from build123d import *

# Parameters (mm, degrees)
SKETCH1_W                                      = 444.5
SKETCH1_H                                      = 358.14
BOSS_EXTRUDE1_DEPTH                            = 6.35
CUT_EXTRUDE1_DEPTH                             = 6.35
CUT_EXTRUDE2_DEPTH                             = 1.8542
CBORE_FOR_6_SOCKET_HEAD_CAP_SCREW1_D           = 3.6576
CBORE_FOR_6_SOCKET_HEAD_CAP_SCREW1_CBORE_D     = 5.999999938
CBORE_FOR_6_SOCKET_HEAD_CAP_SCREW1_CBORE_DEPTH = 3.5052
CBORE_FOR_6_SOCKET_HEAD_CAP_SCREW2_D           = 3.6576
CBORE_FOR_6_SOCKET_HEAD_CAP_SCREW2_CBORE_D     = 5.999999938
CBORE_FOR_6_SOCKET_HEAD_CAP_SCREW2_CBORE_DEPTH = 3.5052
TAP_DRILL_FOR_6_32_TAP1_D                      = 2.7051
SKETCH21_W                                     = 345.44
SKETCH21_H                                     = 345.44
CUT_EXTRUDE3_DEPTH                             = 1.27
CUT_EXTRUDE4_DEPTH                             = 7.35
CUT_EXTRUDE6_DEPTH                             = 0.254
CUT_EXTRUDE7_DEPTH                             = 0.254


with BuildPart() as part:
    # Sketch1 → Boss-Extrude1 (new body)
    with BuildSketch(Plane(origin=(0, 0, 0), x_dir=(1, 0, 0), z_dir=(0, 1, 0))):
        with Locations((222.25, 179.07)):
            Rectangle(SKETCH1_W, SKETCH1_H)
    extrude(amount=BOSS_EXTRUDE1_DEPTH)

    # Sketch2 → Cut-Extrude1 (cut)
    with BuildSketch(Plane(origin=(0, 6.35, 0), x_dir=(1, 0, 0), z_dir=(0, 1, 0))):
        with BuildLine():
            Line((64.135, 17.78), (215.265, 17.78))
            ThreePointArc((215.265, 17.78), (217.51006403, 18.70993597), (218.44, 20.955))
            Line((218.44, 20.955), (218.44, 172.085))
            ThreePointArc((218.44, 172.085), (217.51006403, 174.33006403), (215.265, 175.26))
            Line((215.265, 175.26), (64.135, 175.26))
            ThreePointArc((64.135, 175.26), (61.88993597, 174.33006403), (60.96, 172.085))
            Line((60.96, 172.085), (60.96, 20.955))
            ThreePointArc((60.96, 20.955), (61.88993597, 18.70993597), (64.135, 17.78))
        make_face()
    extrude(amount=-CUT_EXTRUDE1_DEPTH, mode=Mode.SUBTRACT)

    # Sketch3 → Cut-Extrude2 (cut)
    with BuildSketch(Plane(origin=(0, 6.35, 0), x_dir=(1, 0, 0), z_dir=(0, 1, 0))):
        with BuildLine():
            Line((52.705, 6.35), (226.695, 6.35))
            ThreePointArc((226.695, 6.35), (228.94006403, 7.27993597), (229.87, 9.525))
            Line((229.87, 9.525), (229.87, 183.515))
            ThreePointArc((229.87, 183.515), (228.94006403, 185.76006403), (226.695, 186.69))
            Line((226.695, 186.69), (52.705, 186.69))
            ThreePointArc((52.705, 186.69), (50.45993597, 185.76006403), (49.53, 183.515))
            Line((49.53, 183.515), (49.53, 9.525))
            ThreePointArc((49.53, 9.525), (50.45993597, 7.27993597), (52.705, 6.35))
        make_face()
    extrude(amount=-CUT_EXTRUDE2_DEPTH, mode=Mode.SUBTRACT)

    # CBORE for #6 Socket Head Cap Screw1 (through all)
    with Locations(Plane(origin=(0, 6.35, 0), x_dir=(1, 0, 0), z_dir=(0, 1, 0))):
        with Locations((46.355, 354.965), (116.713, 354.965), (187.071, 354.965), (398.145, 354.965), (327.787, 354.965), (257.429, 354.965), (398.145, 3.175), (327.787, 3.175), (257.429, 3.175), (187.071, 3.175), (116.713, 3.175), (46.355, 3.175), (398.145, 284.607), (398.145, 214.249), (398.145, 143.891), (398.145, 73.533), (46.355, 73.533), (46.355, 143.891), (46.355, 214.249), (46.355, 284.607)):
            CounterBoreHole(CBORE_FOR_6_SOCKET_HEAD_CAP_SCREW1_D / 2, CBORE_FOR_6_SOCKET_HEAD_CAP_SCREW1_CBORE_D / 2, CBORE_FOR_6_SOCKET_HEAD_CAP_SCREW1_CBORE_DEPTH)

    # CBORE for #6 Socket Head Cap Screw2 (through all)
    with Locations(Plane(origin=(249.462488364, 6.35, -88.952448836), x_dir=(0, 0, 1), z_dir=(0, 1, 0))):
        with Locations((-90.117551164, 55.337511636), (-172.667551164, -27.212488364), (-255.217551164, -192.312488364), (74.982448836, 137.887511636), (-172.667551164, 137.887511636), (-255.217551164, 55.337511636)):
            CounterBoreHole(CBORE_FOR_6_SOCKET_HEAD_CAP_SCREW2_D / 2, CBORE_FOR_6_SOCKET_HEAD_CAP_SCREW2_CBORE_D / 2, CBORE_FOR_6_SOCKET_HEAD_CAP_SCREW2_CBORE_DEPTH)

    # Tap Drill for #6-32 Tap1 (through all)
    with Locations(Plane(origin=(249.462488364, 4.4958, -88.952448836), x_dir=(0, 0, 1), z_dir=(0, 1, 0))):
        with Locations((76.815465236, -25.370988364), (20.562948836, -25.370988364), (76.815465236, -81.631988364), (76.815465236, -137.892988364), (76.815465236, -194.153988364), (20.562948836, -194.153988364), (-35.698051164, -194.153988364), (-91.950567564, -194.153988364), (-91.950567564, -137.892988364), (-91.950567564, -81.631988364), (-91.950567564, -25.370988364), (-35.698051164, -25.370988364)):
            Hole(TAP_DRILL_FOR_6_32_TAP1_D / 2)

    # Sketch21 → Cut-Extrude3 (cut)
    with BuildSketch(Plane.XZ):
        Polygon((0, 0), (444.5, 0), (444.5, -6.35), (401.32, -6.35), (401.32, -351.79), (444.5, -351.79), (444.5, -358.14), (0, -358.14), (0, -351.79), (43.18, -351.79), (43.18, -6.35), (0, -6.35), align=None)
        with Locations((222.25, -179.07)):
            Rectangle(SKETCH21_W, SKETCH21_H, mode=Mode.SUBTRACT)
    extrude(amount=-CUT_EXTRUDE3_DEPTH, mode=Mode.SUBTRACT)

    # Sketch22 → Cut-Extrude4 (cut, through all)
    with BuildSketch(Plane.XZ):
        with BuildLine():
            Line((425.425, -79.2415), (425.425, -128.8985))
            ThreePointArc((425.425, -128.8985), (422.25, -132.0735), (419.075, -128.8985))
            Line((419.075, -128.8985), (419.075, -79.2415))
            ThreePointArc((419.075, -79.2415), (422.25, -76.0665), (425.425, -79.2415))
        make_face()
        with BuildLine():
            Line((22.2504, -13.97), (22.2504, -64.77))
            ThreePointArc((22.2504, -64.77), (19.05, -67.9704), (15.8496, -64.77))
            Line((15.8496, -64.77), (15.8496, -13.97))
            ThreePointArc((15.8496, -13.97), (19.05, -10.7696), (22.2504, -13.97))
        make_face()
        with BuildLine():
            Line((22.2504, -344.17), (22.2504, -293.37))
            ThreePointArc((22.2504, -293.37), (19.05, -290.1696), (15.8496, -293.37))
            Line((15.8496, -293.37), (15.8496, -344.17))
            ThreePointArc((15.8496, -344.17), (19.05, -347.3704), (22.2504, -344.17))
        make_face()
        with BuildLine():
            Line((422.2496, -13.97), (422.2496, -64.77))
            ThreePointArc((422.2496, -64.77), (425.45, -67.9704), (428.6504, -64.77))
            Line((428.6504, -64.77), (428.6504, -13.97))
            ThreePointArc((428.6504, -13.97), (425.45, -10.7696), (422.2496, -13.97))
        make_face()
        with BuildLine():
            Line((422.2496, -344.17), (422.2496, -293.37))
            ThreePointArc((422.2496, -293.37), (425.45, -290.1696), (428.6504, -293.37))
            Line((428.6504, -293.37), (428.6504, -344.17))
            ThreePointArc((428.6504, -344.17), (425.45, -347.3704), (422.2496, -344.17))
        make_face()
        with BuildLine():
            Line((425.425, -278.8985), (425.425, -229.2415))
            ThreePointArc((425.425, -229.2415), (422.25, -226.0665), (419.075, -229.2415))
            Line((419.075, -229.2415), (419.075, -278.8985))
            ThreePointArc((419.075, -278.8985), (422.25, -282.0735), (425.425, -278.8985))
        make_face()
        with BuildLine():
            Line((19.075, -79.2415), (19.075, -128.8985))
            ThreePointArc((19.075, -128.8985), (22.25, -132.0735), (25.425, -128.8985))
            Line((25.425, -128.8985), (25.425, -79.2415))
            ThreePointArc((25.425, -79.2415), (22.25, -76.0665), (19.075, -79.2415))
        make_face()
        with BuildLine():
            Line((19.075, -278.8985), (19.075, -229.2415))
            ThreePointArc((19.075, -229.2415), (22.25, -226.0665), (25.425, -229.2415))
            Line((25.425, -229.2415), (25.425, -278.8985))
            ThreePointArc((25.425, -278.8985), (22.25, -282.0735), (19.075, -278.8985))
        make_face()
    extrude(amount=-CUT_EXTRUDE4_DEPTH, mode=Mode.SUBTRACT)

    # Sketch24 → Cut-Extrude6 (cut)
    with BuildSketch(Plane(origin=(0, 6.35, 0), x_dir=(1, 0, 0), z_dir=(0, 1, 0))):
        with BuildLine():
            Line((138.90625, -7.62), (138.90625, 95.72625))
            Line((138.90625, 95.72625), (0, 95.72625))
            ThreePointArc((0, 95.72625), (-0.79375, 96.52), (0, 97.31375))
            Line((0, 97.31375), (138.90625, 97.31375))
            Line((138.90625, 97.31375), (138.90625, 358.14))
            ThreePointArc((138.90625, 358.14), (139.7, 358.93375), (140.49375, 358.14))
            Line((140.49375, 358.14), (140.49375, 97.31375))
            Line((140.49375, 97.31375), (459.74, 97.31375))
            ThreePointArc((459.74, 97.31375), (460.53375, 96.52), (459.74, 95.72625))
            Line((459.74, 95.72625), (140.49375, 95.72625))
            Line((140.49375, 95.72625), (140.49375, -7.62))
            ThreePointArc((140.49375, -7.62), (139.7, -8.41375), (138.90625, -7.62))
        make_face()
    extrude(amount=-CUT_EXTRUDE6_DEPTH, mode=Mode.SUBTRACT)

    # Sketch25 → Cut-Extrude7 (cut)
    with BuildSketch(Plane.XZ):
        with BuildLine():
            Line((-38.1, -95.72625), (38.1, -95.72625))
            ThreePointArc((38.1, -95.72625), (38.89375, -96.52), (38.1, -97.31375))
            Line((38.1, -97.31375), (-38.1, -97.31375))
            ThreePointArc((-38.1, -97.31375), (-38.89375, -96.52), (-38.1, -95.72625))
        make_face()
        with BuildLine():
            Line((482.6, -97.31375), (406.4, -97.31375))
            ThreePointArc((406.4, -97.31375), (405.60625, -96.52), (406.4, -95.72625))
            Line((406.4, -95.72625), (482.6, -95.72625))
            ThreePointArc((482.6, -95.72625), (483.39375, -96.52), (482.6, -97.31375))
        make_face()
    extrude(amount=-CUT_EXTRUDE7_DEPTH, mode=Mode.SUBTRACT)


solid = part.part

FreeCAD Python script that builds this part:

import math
import FreeCAD as App
import Part
import Sketcher
Q = App.Units.Quantity


def add_polygon(sketch, points):
    """Adds a closed chain of lines whose ends are joined by coincident constraints."""
    first, n = sketch.GeometryCount, len(points)
    for a, b in zip(points, points[1:] + points[:1]):
        sketch.addGeometry(Part.LineSegment(App.Vector(*a, 0), App.Vector(*b, 0)), False)
    for i in range(n):
        sketch.addConstraint(Sketcher.Constraint("Coincident", first + i, 2, first + (i + 1) % n, 1))

doc = App.newDocument("Part")
body = doc.addObject("PartDesign::Body", "Body")

# Sketch on XZ plane
sketch1 = body.newObject("Sketcher::SketchObject", "Sketch")
sketch1.AttachmentSupport = (doc.getObject("XZ_Plane"), [""])
sketch1.MapMode = "FlatFace"
add_polygon(sketch1, [(0, -358), (0, 0), (444, 0), (444, -358)])  # lines 0-3
sketch1.addConstraint([
    Sketcher.Constraint("Vertical", 0),
    Sketcher.Constraint("Horizontal", 1),
    Sketcher.Constraint("Vertical", 2),
    Sketcher.Constraint("Horizontal", 3),
    Sketcher.Constraint("Coincident", 0, 2, -1, 1),
    Sketcher.Constraint("DistanceX", 1, 1, 1, 2, Q("17.5 in")),
    Sketcher.Constraint("DistanceY", 0, 1, 0, 2, Q("14.1 in")),
])
pad1 = body.newObject("PartDesign::Pad", "Pad")
pad1.Profile = sketch1
pad1.Length = Q("0.25 in")
pad1.Reversed = True

# Sketch on XZ plane
sketch2 = body.newObject("Sketcher::SketchObject", "Sketch001")
sketch2.AttachmentSupport = (doc.getObject("XZ_Plane"), [""])
sketch2.MapMode = "FlatFace"
sketch2.AttachmentOffset = App.Placement(App.Vector(0, 0, -0.25 * 25.4), App.Rotation())
sketch2.addGeometry([
    Part.LineSegment(App.Vector(64.1, -17.8, 0), App.Vector(215.3, -17.8, 0)),  # 0
    Part.ArcOfCircle(Part.Circle(App.Vector(215.3, -21, 0), App.Vector(0, 0, 1), 3.2), math.radians(0), math.radians(90)),  # 1
    Part.LineSegment(App.Vector(218.4, -21, 0), App.Vector(218.4, -172.1, 0)),  # 2
    Part.ArcOfCircle(Part.Circle(App.Vector(215.3, -172.1, 0), App.Vector(0, 0, 1), 3.2), math.radians(-90), math.radians(0)),  # 3
    Part.LineSegment(App.Vector(215.3, -175.3, 0), App.Vector(64.1, -175.3, 0)),  # 4
    Part.ArcOfCircle(Part.Circle(App.Vector(64.1, -172.1, 0), App.Vector(0, 0, 1), 3.2), math.radians(-180), math.radians(-90)),  # 5
    Part.LineSegment(App.Vector(61, -172.1, 0), App.Vector(61, -21, 0)),  # 6
    Part.ArcOfCircle(Part.Circle(App.Vector(64.1, -21, 0), App.Vector(0, 0, 1), 3.2), math.radians(90), math.radians(180)),  # 7
], False)
sketch2.addConstraint([
    Sketcher.Constraint("Tangent", 0, 2, 1, 2),
    Sketcher.Constraint("Tangent", 1, 1, 2, 1),
    Sketcher.Constraint("Tangent", 2, 2, 3, 2),
    Sketcher.Constraint("Tangent", 3, 1, 4, 1),
    Sketcher.Constraint("Tangent", 4, 2, 5, 2),
    Sketcher.Constraint("Tangent", 5, 1, 6, 1),
    Sketcher.Constraint("Tangent", 6, 2, 7, 2),
    Sketcher.Constraint("Tangent", 7, 1, 0, 1),
    Sketcher.Constraint("Horizontal", 0),
    Sketcher.Constraint("Vertical", 2),
    Sketcher.Constraint("Horizontal", 4),
    Sketcher.Constraint("Vertical", 6),
    Sketcher.Constraint("Equal", 1, 3),
    Sketcher.Constraint("Equal", 3, 5),
    Sketcher.Constraint("Equal", 5, 7),
    Sketcher.Constraint("Equal", 4, 2),
    Sketcher.Constraint("Radius", 1, Q("0.125 in")),
    Sketcher.Constraint("DistanceX", 0, 1, 0, 2, Q("5.95 in")),
    Sketcher.Constraint("DistanceY", 0, 2, -1, 1, Q("0.7 in")),
    Sketcher.Constraint("DistanceX", -1, 1, 1, 1, Q("8.6 in")),
])
pocket1 = body.newObject("PartDesign::Pocket", "Pocket")
pocket1.Profile = sketch2
pocket1.Length = Q("0.25 in")
pocket1.Reversed = True

# Sketch on XZ plane
sketch3 = body.newObject("Sketcher::SketchObject", "Sketch002")
sketch3.AttachmentSupport = (doc.getObject("XZ_Plane"), [""])
sketch3.MapMode = "FlatFace"
sketch3.AttachmentOffset = App.Placement(App.Vector(0, 0, -0.25 * 25.4), App.Rotation())
sketch3.addGeometry([
    Part.LineSegment(App.Vector(52.7, -6.3, 0), App.Vector(226.7, -6.3, 0)),  # 0
    Part.ArcOfCircle(Part.Circle(App.Vector(226.7, -9.5, 0), App.Vector(0, 0, 1), 3.2), math.radians(0), math.radians(90)),  # 1
    Part.LineSegment(App.Vector(229.9, -9.5, 0), App.Vector(229.9, -183.5, 0)),  # 2
    Part.ArcOfCircle(Part.Circle(App.Vector(226.7, -183.5, 0), App.Vector(0, 0, 1), 3.2), math.radians(-90), math.radians(0)),  # 3
    Part.LineSegment(App.Vector(226.7, -186.7, 0), App.Vector(52.7, -186.7, 0)),  # 4
    Part.ArcOfCircle(Part.Circle(App.Vector(52.7, -183.5, 0), App.Vector(0, 0, 1), 3.2), math.radians(-180), math.radians(-90)),  # 5
    Part.LineSegment(App.Vector(49.5, -183.5, 0), App.Vector(49.5, -9.5, 0)),  # 6
    Part.ArcOfCircle(Part.Circle(App.Vector(52.7, -9.5, 0), App.Vector(0, 0, 1), 3.2), math.radians(90), math.radians(180)),  # 7
], False)
sketch3.addConstraint([
    Sketcher.Constraint("Tangent", 0, 2, 1, 2),
    Sketcher.Constraint("Tangent", 1, 1, 2, 1),
    Sketcher.Constraint("Tangent", 2, 2, 3, 2),
    Sketcher.Constraint("Tangent", 3, 1, 4, 1),
    Sketcher.Constraint("Tangent", 4, 2, 5, 2),
    Sketcher.Constraint("Tangent", 5, 1, 6, 1),
    Sketcher.Constraint("Tangent", 6, 2, 7, 2),
    Sketcher.Constraint("Tangent", 7, 1, 0, 1),
    Sketcher.Constraint("Horizontal", 0),
    Sketcher.Constraint("Vertical", 2),
    Sketcher.Constraint("Horizontal", 4),
    Sketcher.Constraint("Vertical", 6),
    Sketcher.Constraint("Equal", 1, 3),
    Sketcher.Constraint("Equal", 3, 5),
    Sketcher.Constraint("Equal", 5, 7),
    Sketcher.Constraint("Equal", 4, 2),
    Sketcher.Constraint("Radius", 1, Q("0.125 in")),
    Sketcher.Constraint("DistanceX", 0, 1, 0, 2, Q("6.85 in")),
    Sketcher.Constraint("DistanceY", 0, 2, -1, 1, Q("0.25 in")),
    Sketcher.Constraint("DistanceX", -1, 1, 1, 1, Q("9.05 in")),
])
pocket2 = body.newObject("PartDesign::Pocket", "Pocket001")
pocket2.Profile = sketch3
pocket2.Length = Q("0.073 in")
pocket2.Reversed = True

# Sketch on XZ plane
sketch4 = body.newObject("Sketcher::SketchObject", "Sketch003")
sketch4.AttachmentSupport = (doc.getObject("XZ_Plane"), [""])
sketch4.MapMode = "FlatFace"
sketch4.AttachmentOffset = App.Placement(App.Vector(0, 0, -0.25 * 25.4), App.Rotation())
sketch4.addGeometry([
    Part.Circle(App.Vector(46.4, -355, 0), App.Vector(0, 0, 1), 1.8),  # 0
    Part.Circle(App.Vector(116.7, -355, 0), App.Vector(0, 0, 1), 1.8),  # 1
    Part.Circle(App.Vector(187.1, -355, 0), App.Vector(0, 0, 1), 1.8),  # 2
    Part.Circle(App.Vector(398.1, -355, 0), App.Vector(0, 0, 1), 1.8),  # 3
    Part.Circle(App.Vector(327.8, -355, 0), App.Vector(0, 0, 1), 1.8),  # 4
    Part.Circle(App.Vector(257.4, -355, 0), App.Vector(0, 0, 1), 1.8),  # 5
    Part.Circle(App.Vector(398.1, -3.2, 0), App.Vector(0, 0, 1), 1.8),  # 6
    Part.Circle(App.Vector(327.8, -3.2, 0), App.Vector(0, 0, 1), 1.8),  # 7
    Part.Circle(App.Vector(257.4, -3.2, 0), App.Vector(0, 0, 1), 1.8),  # 8
    Part.Circle(App.Vector(187.1, -3.2, 0), App.Vector(0, 0, 1), 1.8),  # 9
    Part.Circle(App.Vector(116.7, -3.2, 0), App.Vector(0, 0, 1), 1.8),  # 10
    Part.Circle(App.Vector(46.4, -3.2, 0), App.Vector(0, 0, 1), 1.8),  # 11
    Part.Circle(App.Vector(398.1, -284.6, 0), App.Vector(0, 0, 1), 1.8),  # 12
    Part.Circle(App.Vector(398.1, -214.2, 0), App.Vector(0, 0, 1), 1.8),  # 13
    Part.Circle(App.Vector(398.1, -143.9, 0), App.Vector(0, 0, 1), 1.8),  # 14
    Part.Circle(App.Vector(398.1, -73.5, 0), App.Vector(0, 0, 1), 1.8),  # 15
    Part.Circle(App.Vector(46.4, -73.5, 0), App.Vector(0, 0, 1), 1.8),  # 16
    Part.Circle(App.Vector(46.4, -143.9, 0), App.Vector(0, 0, 1), 1.8),  # 17
    Part.Circle(App.Vector(46.4, -214.2, 0), App.Vector(0, 0, 1), 1.8),  # 18
    Part.Circle(App.Vector(46.4, -284.6, 0), App.Vector(0, 0, 1), 1.8),  # 19
], False)
sketch4.addConstraint([
    Sketcher.Constraint("Equal", 0, 1),
    Sketcher.Constraint("Equal", 1, 2),
    Sketcher.Constraint("Equal", 2, 3),
    Sketcher.Constraint("Equal", 3, 4),
    Sketcher.Constraint("Equal", 4, 5),
    Sketcher.Constraint("Equal", 5, 6),
    Sketcher.Constraint("Equal", 6, 7),
    Sketcher.Constraint("Equal", 7, 8),
    Sketcher.Constraint("Equal", 8, 9),
    Sketcher.Constraint("Equal", 9, 10),
    Sketcher.Constraint("Equal", 10, 11),
    Sketcher.Constraint("Equal", 11, 12),
    Sketcher.Constraint("Equal", 12, 13),
    Sketcher.Constraint("Equal", 13, 14),
    Sketcher.Constraint("Equal", 14, 15),
    Sketcher.Constraint("Equal", 15, 16),
    Sketcher.Constraint("Equal", 16, 17),
    Sketcher.Constraint("Equal", 17, 18),
    Sketcher.Constraint("Equal", 18, 19),
    Sketcher.Constraint("Horizontal", 0, 3, 1, 3),
    Sketcher.Constraint("Horizontal", 1, 3, 2, 3),
    Sketcher.Constraint("Horizontal", 2, 3, 3, 3),
    Sketcher.Constraint("Horizontal", 3, 3, 4, 3),
    Sketcher.Constraint("Horizontal", 4, 3, 5, 3),
    Sketcher.Constraint("Horizontal", 6, 3, 7, 3),
    Sketcher.Constraint("Horizontal", 7, 3, 8, 3),
    Sketcher.Constraint("Horizontal", 8, 3, 9, 3),
    Sketcher.Constraint("Horizontal", 9, 3, 10, 3),
    Sketcher.Constraint("Horizontal", 10, 3, 11, 3),
    Sketcher.Constraint("Horizontal", 15, 3, 16, 3),
    Sketcher.Constraint("Horizontal", 14, 3, 17, 3),
    Sketcher.Constraint("Horizontal", 13, 3, 18, 3),
    Sketcher.Constraint("Horizontal", 12, 3, 19, 3),
    Sketcher.Constraint("Vertical", 3, 3, 6, 3),
    Sketcher.Constraint("Vertical", 4, 3, 7, 3),
    Sketcher.Constraint("Vertical", 5, 3, 8, 3),
    Sketcher.Constraint("Vertical", 2, 3, 9, 3),
    Sketcher.Constraint("Vertical", 1, 3, 10, 3),
    Sketcher.Constraint("Vertical", 0, 3, 11, 3),
    Sketcher.Constraint("Vertical", 6, 3, 12, 3),
    Sketcher.Constraint("Vertical", 12, 3, 13, 3),
    Sketcher.Constraint("Vertical", 13, 3, 14, 3),
    Sketcher.Constraint("Vertical", 14, 3, 15, 3),
    Sketcher.Constraint("Vertical", 11, 3, 16, 3),
    Sketcher.Constraint("Vertical", 16, 3, 17, 3),
    Sketcher.Constraint("Vertical", 17, 3, 18, 3),
    Sketcher.Constraint("Vertical", 18, 3, 19, 3),
    Sketcher.Constraint("Diameter", 0, Q("0.144 in")),
    Sketcher.Constraint("DistanceX", 0, 3, 1, 3, Q("2.77 in")),
    Sketcher.Constraint("DistanceX", 1, 3, 2, 3, Q("2.77 in")),
    Sketcher.Constraint("DistanceX", 2, 3, 3, 3, Q("8.31 in")),
    Sketcher.Constraint("DistanceX", 4, 3, 3, 3, Q("2.77 in")),
    Sketcher.Constraint("DistanceX", 2, 3, 5, 3, Q("2.77 in")),
    Sketcher.Constraint("DistanceY", 3, 3, 6, 3, Q("13.85 in")),
    Sketcher.Constraint("DistanceY", 3, 3, 12, 3, Q("2.77 in")),
    Sketcher.Constraint("DistanceY", 12, 3, 13, 3, Q("2.77 in")),
    Sketcher.Constraint("DistanceY", 13, 3, 14, 3, Q("2.77 in")),
    Sketcher.Constraint("DistanceY", 14, 3, 15, 3, Q("2.77 in")),
    Sketcher.Constraint("DistanceX", -1, 1, 0, 3, Q("1.825 in")),
    Sketcher.Constraint("DistanceY", 0, 3, -1, 1, Q("13.975 in")),
])
doc.recompute()
hole = body.newObject("PartDesign::Hole", "Hole")
hole.Profile = sketch4
hole.ThreadType = "None"
hole.Diameter = Q("0.144 in")
hole.DepthType = "ThroughAll"
hole.HoleCutType = "Counterbore"
hole.HoleCutDiameter = 6
hole.HoleCutDepth = Q("0.138 in")
hole.Reversed = True

# Sketch on XZ plane
sketch5 = body.newObject("Sketcher::SketchObject", "Sketch004")
sketch5.AttachmentSupport = (doc.getObject("XZ_Plane"), [""])
sketch5.MapMode = "FlatFace"
sketch5.AttachmentOffset = App.Placement(App.Vector(0, 0, -0.25 * 25.4), App.Rotation())
sketch5.addGeometry([
    Part.Circle(App.Vector(304.8, -179.1, 0), App.Vector(0, 0, 1), 1.8),  # 0
    Part.Circle(App.Vector(222.2, -261.6, 0), App.Vector(0, 0, 1), 1.8),  # 1
    Part.Circle(App.Vector(57.1, -344.2, 0), App.Vector(0, 0, 1), 1.8),  # 2
    Part.Circle(App.Vector(387.4, -14, 0), App.Vector(0, 0, 1), 1.8),  # 3
    Part.Circle(App.Vector(387.4, -261.6, 0), App.Vector(0, 0, 1), 1.8),  # 4
    Part.Circle(App.Vector(304.8, -344.2, 0), App.Vector(0, 0, 1), 1.8),  # 5
], False)
sketch5.addConstraint([
    Sketcher.Constraint("Equal", 0, 1),
    Sketcher.Constraint("Equal", 1, 2),
    Sketcher.Constraint("Equal", 2, 3),
    Sketcher.Constraint("Equal", 3, 4),
    Sketcher.Constraint("Equal", 4, 5),
    Sketcher.Constraint("Horizontal", 1, 3, 4, 3),
    Sketcher.Constraint("Horizontal", 2, 3, 5, 3),
    Sketcher.Constraint("Vertical", 3, 3, 4, 3),
    Sketcher.Constraint("Vertical", 0, 3, 5, 3),
    Sketcher.Constraint("Diameter", 0, Q("0.144 in")),
    Sketcher.Constraint("DistanceX", -1, 1, 0, 3, Q("12 in")),
    Sketcher.Constraint("DistanceX", 2, 3, 3, 3, Q("13 in")),
    Sketcher.Constraint("DistanceY", 2, 3, 3, 3, Q("13 in")),
    Sketcher.Constraint("DistanceY", 1, 3, -1, 1, Q("10.3 in")),
    Sketcher.Constraint("DistanceX", 2, 3, 1, 3, Q("6.5 in")),
    Sketcher.Constraint("DistanceY", 2, 3, 0, 3, Q("6.5 in")),
    Sketcher.Constraint("DistanceY", 0, 3, -1, 1, Q("7.05 in")),
    Sketcher.Constraint("DistanceX", -1, 1, 1, 3, Q("8.75 in")),
])
doc.recompute()
hole2 = body.newObject("PartDesign::Hole", "Hole001")
hole2.Profile = sketch5
hole2.ThreadType = "None"
hole2.Diameter = Q("0.144 in")
hole2.DepthType = "ThroughAll"
hole2.HoleCutType = "Counterbore"
hole2.HoleCutDiameter = 6
hole2.HoleCutDepth = Q("0.138 in")
hole2.Reversed = True

# Sketch on XZ plane
sketch6 = body.newObject("Sketcher::SketchObject", "Sketch005")
sketch6.AttachmentSupport = (doc.getObject("XZ_Plane"), [""])
sketch6.MapMode = "FlatFace"
sketch6.AttachmentOffset = App.Placement(App.Vector(0, 0, -0.177 * 25.4), App.Rotation())
sketch6.addGeometry([
    Part.Circle(App.Vector(224.1, -12.1, 0), App.Vector(0, 0, 1), 1.4),  # 0
    Part.Circle(App.Vector(224.1, -68.4, 0), App.Vector(0, 0, 1), 1.4),  # 1
    Part.Circle(App.Vector(167.8, -12.1, 0), App.Vector(0, 0, 1), 1.4),  # 2
    Part.Circle(App.Vector(111.6, -12.1, 0), App.Vector(0, 0, 1), 1.4),  # 3
    Part.Circle(App.Vector(55.3, -12.1, 0), App.Vector(0, 0, 1), 1.4),  # 4
    Part.Circle(App.Vector(55.3, -68.4, 0), App.Vector(0, 0, 1), 1.4),  # 5
    Part.Circle(App.Vector(55.3, -124.7, 0), App.Vector(0, 0, 1), 1.4),  # 6
    Part.Circle(App.Vector(55.3, -180.9, 0), App.Vector(0, 0, 1), 1.4),  # 7
    Part.Circle(App.Vector(111.6, -180.9, 0), App.Vector(0, 0, 1), 1.4),  # 8
    Part.Circle(App.Vector(167.8, -180.9, 0), App.Vector(0, 0, 1), 1.4),  # 9
    Part.Circle(App.Vector(224.1, -180.9, 0), App.Vector(0, 0, 1), 1.4),  # 10
    Part.Circle(App.Vector(224.1, -124.7, 0), App.Vector(0, 0, 1), 1.4),  # 11
], False)
sketch6.addConstraint([
    Sketcher.Constraint("Equal", 0, 1),
    Sketcher.Constraint("Equal", 1, 2),
    Sketcher.Constraint("Equal", 2, 3),
    Sketcher.Constraint("Equal", 3, 4),
    Sketcher.Constraint("Equal", 4, 5),
    Sketcher.Constraint("Equal", 5, 6),
    Sketcher.Constraint("Equal", 6, 7),
    Sketcher.Constraint("Equal", 7, 8),
    Sketcher.Constraint("Equal", 8, 9),
    Sketcher.Constraint("Equal", 9, 10),
    Sketcher.Constraint("Equal", 10, 11),
    Sketcher.Constraint("Horizontal", 0, 3, 2, 3),
    Sketcher.Constraint("Horizontal", 2, 3, 3, 3),
    Sketcher.Constraint("Horizontal", 3, 3, 4, 3),
    Sketcher.Constraint("Horizontal", 1, 3, 5, 3),
    Sketcher.Constraint("Horizontal", 7, 3, 8, 3),
    Sketcher.Constraint("Horizontal", 8, 3, 9, 3),
    Sketcher.Constraint("Horizontal", 9, 3, 10, 3),
    Sketcher.Constraint("Horizontal", 6, 3, 11, 3),
    Sketcher.Constraint("Vertical", 0, 3, 1, 3),
    Sketcher.Constraint("Vertical", 4, 3, 5, 3),
    Sketcher.Constraint("Vertical", 5, 3, 6, 3),
    Sketcher.Constraint("Vertical", 6, 3, 7, 3),
    Sketcher.Constraint("Vertical", 3, 3, 8, 3),
    Sketcher.Constraint("Vertical", 2, 3, 9, 3),
    Sketcher.Constraint("Vertical", 1, 3, 10, 3),
    Sketcher.Constraint("Vertical", 10, 3, 11, 3),
    Sketcher.Constraint("Diameter", 0, Q("0.1065 in")),
    Sketcher.Constraint("DistanceX", 3, 3, 0, 3, Q("4.43 in")),
    Sketcher.Constraint("DistanceX", 4, 3, 2, 3, Q("4.43 in")),
    Sketcher.Constraint("DistanceX", 2, 3, 0, 3, Q("2.215 in")),
    Sketcher.Constraint("DistanceY", 6, 3, 5, 3, Q("2.215 in")),
    Sketcher.Constraint("DistanceX", -1, 1, 0, 3, Q("8.8225 in")),
    Sketcher.Constraint("DistanceY", 1, 3, -1, 1, Q("2.6925 in")),
    Sketcher.Constraint("DistanceY", 0, 3, -1, 1, Q("12.136984 mm")),
    Sketcher.Constraint("DistanceY", 7, 3, -1, 1, Q("180.903016 mm")),
])
doc.recompute()
hole3 = body.newObject("PartDesign::Hole", "Hole002")
hole3.Profile = sketch6
hole3.ThreadType = "None"
hole3.Diameter = Q("0.1065 in")
hole3.DepthType = "ThroughAll"
hole3.Reversed = True

# Sketch on XZ plane
sketch7 = body.newObject("Sketcher::SketchObject", "Sketch006")
sketch7.AttachmentSupport = (doc.getObject("XZ_Plane"), [""])
sketch7.MapMode = "FlatFace"
add_polygon(sketch7, [(444, 0), (0, 0), (0, -6), (43, -6), (43, -352), (0, -352), (0, -358), (444, -358), (444, -352), (401, -352), (401, -6), (444, -6)])  # lines 0-11
add_polygon(sketch7, [(50, -352), (50, -6), (395, -6), (395, -352)])  # lines 12-15
sketch7.addConstraint([
    Sketcher.Constraint("Horizontal", 0),
    Sketcher.Constraint("Vertical", 1),
    Sketcher.Constraint("Horizontal", 2),
    Sketcher.Constraint("Vertical", 3),
    Sketcher.Constraint("Horizontal", 4),
    Sketcher.Constraint("Vertical", 5),
    Sketcher.Constraint("Horizontal", 6),
    Sketcher.Constraint("Vertical", 7),
    Sketcher.Constraint("Horizontal", 8),
    Sketcher.Constraint("Vertical", 9),
    Sketcher.Constraint("Horizontal", 10),
    Sketcher.Constraint("Vertical", 11),
    Sketcher.Constraint("Vertical", 12),
    Sketcher.Constraint("Horizontal", 13),
    Sketcher.Constraint("Vertical", 14),
    Sketcher.Constraint("Horizontal", 15),
    Sketcher.Constraint("Coincident", 0, 2, -1, 1),
    Sketcher.Constraint("PointOnObject", 4, 2, -2),
    Sketcher.Constraint("Horizontal", 4, 2, 7, 2),
    Sketcher.Constraint("Horizontal", 2, 2, 9, 2),
    Sketcher.Constraint("Horizontal", 10, 2, 12, 2),
    Sketcher.Constraint("Horizontal", 8, 2, 14, 2),
    Sketcher.Constraint("Vertical", 7, 2, 10, 2),
    Sketcher.Constraint("Equal", 4, 8),
    Sketcher.Constraint("Equal", 15, 3),
    Sketcher.Constraint("Equal", 1, 5),
    Sketcher.Constraint("DistanceX", 0, 2, 0, 1, Q("17.5 in")),
    Sketcher.Constraint("DistanceX", 2, 1, 2, 2, Q("1.7 in")),
    Sketcher.Constraint("DistanceX", 13, 1, 13, 2, Q("13.6 in")),
    Sketcher.Constraint("DistanceY", 1, 2, 1, 1, Q("0.25 in")),
    Sketcher.Constraint("DistanceX", -1, 1, 12, 2, Q("1.95 in")),
])
pocket3 = body.newObject("PartDesign::Pocket", "Pocket002")
pocket3.Profile = sketch7
pocket3.Length = Q("0.05 in")

# Sketch on XZ plane
sketch8 = body.newObject("Sketcher::SketchObject", "Sketch007")
sketch8.AttachmentSupport = (doc.getObject("XZ_Plane"), [""])
sketch8.MapMode = "FlatFace"
sketch8.addGeometry([
    Part.LineSegment(App.Vector(425.4, -128.9, 0), App.Vector(425.4, -79.2, 0)),  # 0
    Part.ArcOfCircle(Part.Circle(App.Vector(422.2, -79.2, 0), App.Vector(0, 0, 1), 3.2), math.radians(0), math.radians(180)),  # 1
    Part.LineSegment(App.Vector(419.1, -79.2, 0), App.Vector(419.1, -128.9, 0)),  # 2
    Part.ArcOfCircle(Part.Circle(App.Vector(422.2, -128.9, 0), App.Vector(0, 0, 1), 3.2), math.radians(180), math.radians(360)),  # 3
    Part.LineSegment(App.Vector(22.3, -64.8, 0), App.Vector(22.3, -14, 0)),  # 4
    Part.ArcOfCircle(Part.Circle(App.Vector(19.1, -14, 0), App.Vector(0, 0, 1), 3.2), math.radians(0), math.radians(180)),  # 5
    Part.LineSegment(App.Vector(15.8, -14, 0), App.Vector(15.8, -64.8, 0)),  # 6
    Part.ArcOfCircle(Part.Circle(App.Vector(19.1, -64.8, 0), App.Vector(0, 0, 1), 3.2), math.radians(180), math.radians(360)),  # 7
    Part.LineSegment(App.Vector(22.3, -344.2, 0), App.Vector(22.3, -293.4, 0)),  # 8
    Part.ArcOfCircle(Part.Circle(App.Vector(19.1, -293.4, 0), App.Vector(0, 0, 1), 3.2), math.radians(0), math.radians(180)),  # 9
    Part.LineSegment(App.Vector(15.8, -293.4, 0), App.Vector(15.8, -344.2, 0)),  # 10
    Part.ArcOfCircle(Part.Circle(App.Vector(19.1, -344.2, 0), App.Vector(0, 0, 1), 3.2), math.radians(180), math.radians(360)),  # 11
    Part.LineSegment(App.Vector(422.2, -14, 0), App.Vector(422.2, -64.8, 0)),  # 12
    Part.ArcOfCircle(Part.Circle(App.Vector(425.4, -64.8, 0), App.Vector(0, 0, 1), 3.2), math.radians(180), math.radians(360)),  # 13
    Part.LineSegment(App.Vector(428.7, -64.8, 0), App.Vector(428.7, -14, 0)),  # 14
    Part.ArcOfCircle(Part.Circle(App.Vector(425.4, -14, 0), App.Vector(0, 0, 1), 3.2), math.radians(0), math.radians(180)),  # 15
    Part.LineSegment(App.Vector(422.2, -293.4, 0), App.Vector(422.2, -344.2, 0)),  # 16
    Part.ArcOfCircle(Part.Circle(App.Vector(425.4, -344.2, 0), App.Vector(0, 0, 1), 3.2), math.radians(180), math.radians(360)),  # 17
    Part.LineSegment(App.Vector(428.7, -344.2, 0), App.Vector(428.7, -293.4, 0)),  # 18
    Part.ArcOfCircle(Part.Circle(App.Vector(425.4, -293.4, 0), App.Vector(0, 0, 1), 3.2), math.radians(0), math.radians(180)),  # 19
    Part.LineSegment(App.Vector(425.4, -278.9, 0), App.Vector(425.4, -229.2, 0)),  # 20
    Part.ArcOfCircle(Part.Circle(App.Vector(422.2, -229.2, 0), App.Vector(0, 0, 1), 3.2), math.radians(0), math.radians(180)),  # 21
    Part.LineSegment(App.Vector(419.1, -229.2, 0), App.Vector(419.1, -278.9, 0)),  # 22
    Part.ArcOfCircle(Part.Circle(App.Vector(422.2, -278.9, 0), App.Vector(0, 0, 1), 3.2), math.radians(180), math.radians(360)),  # 23
    Part.LineSegment(App.Vector(19.1, -79.2, 0), App.Vector(19.1, -128.9, 0)),  # 24
    Part.ArcOfCircle(Part.Circle(App.Vector(22.2, -128.9, 0), App.Vector(0, 0, 1), 3.2), math.radians(180), math.radians(360)),  # 25
    Part.LineSegment(App.Vector(25.4, -128.9, 0), App.Vector(25.4, -79.2, 0)),  # 26
    Part.ArcOfCircle(Part.Circle(App.Vector(22.2, -79.2, 0), App.Vector(0, 0, 1), 3.2), math.radians(0), math.radians(180)),  # 27
    Part.LineSegment(App.Vector(19.1, -229.2, 0), App.Vector(19.1, -278.9, 0)),  # 28
    Part.ArcOfCircle(Part.Circle(App.Vector(22.2, -278.9, 0), App.Vector(0, 0, 1), 3.2), math.radians(180), math.radians(360)),  # 29
    Part.LineSegment(App.Vector(25.4, -278.9, 0), App.Vector(25.4, -229.2, 0)),  # 30
    Part.ArcOfCircle(Part.Circle(App.Vector(22.2, -229.2, 0), App.Vector(0, 0, 1), 3.2), math.radians(0), math.radians(180)),  # 31
], False)
sketch8.addConstraint([
    Sketcher.Constraint("Tangent", 0, 2, 1, 1),
    Sketcher.Constraint("Tangent", 1, 2, 2, 1),
    Sketcher.Constraint("Tangent", 2, 2, 3, 1),
    Sketcher.Constraint("Tangent", 3, 2, 0, 1),
    Sketcher.Constraint("Tangent", 4, 2, 5, 1),
    Sketcher.Constraint("Tangent", 5, 2, 6, 1),
    Sketcher.Constraint("Tangent", 6, 2, 7, 1),
    Sketcher.Constraint("Tangent", 7, 2, 4, 1),
    Sketcher.Constraint("Tangent", 8, 2, 9, 1),
    Sketcher.Constraint("Tangent", 9, 2, 10, 1),
    Sketcher.Constraint("Tangent", 10, 2, 11, 1),
    Sketcher.Constraint("Tangent", 11, 2, 8, 1),
    Sketcher.Constraint("Tangent", 12, 2, 13, 1),
    Sketcher.Constraint("Tangent", 13, 2, 14, 1),
    Sketcher.Constraint("Tangent", 14, 2, 15, 1),
    Sketcher.Constraint("Tangent", 15, 2, 12, 1),
    Sketcher.Constraint("Tangent", 16, 2, 17, 1),
    Sketcher.Constraint("Tangent", 17, 2, 18, 1),
    Sketcher.Constraint("Tangent", 18, 2, 19, 1),
    Sketcher.Constraint("Tangent", 19, 2, 16, 1),
    Sketcher.Constraint("Tangent", 20, 2, 21, 1),
    Sketcher.Constraint("Tangent", 21, 2, 22, 1),
    Sketcher.Constraint("Tangent", 22, 2, 23, 1),
    Sketcher.Constraint("Tangent", 23, 2, 20, 1),
    Sketcher.Constraint("Tangent", 24, 2, 25, 1),
    Sketcher.Constraint("Tangent", 25, 2, 26, 1),
    Sketcher.Constraint("Tangent", 26, 2, 27, 1),
    Sketcher.Constraint("Tangent", 27, 2, 24, 1),
    Sketcher.Constraint("Tangent", 28, 2, 29, 1),
    Sketcher.Constraint("Tangent", 29, 2, 30, 1),
    Sketcher.Constraint("Tangent", 30, 2, 31, 1),
    Sketcher.Constraint("Tangent", 31, 2, 28, 1),
    Sketcher.Constraint("Vertical", 0),
    Sketcher.Constraint("Vertical", 2),
    Sketcher.Constraint("Vertical", 4),
    Sketcher.Constraint("Vertical", 6),
    Sketcher.Constraint("Vertical", 8),
    Sketcher.Constraint("Vertical", 10),
    Sketcher.Constraint("Vertical", 12),
    Sketcher.Constraint("Vertical", 14),
    Sketcher.Constraint("Vertical", 16),
    Sketcher.Constraint("Vertical", 18),
    Sketcher.Constraint("Vertical", 20),
    Sketcher.Constraint("Vertical", 22),
    Sketcher.Constraint("Vertical", 24),
    Sketcher.Constraint("Vertical", 26),
    Sketcher.Constraint("Vertical", 28),
    Sketcher.Constraint("Vertical", 30),
    Sketcher.Constraint("Equal", 7, 9),
    Sketcher.Constraint("Equal", 11, 13),
    Sketcher.Constraint("Equal", 15, 17),
    Sketcher.Constraint("Equal", 3, 21),
    Sketcher.Constraint("Equal", 23, 25),
    Sketcher.Constraint("Equal", 27, 29),
    Sketcher.Constraint("Horizontal", 7, 3, 13, 3),
    Sketcher.Constraint("Horizontal", 5, 3, 15, 3),
    Sketcher.Constraint("Horizontal", 11, 3, 17, 3),
    Sketcher.Constraint("Horizontal", 9, 3, 19, 3),
    Sketcher.Constraint("Horizontal", 3, 3, 25, 3),
    Sketcher.Constraint("Horizontal", 1, 3, 27, 3),
    Sketcher.Constraint("Horizontal", 23, 3, 29, 3),
    Sketcher.Constraint("Horizontal", 21, 3, 31, 3),
    Sketcher.Constraint("Vertical", 7, 3, 9, 3),
    Sketcher.Constraint("Vertical", 15, 3, 17, 3),
    Sketcher.Constraint("Vertical", 3, 3, 21, 3),
    Sketcher.Constraint("Vertical", 27, 3, 29, 3),
    Sketcher.Constraint("Equal", 6, 8),
    Sketcher.Constraint("Equal", 2, 20),
    Sketcher.Constraint("DistanceY", 4, 1, 4, 2, Q("2 in")),
    Sketcher.Constraint("Radius", 1, Q("0.125 in")),
    Sketcher.Constraint("Radius", 5, Q("0.126 in")),
    Sketcher.Constraint("DistanceY", 9, 3, 7, 3, Q("9 in")),
    Sketcher.Constraint("DistanceX", 7, 3, 13, 3, Q("16 in")),
    Sketcher.Constraint("DistanceY", 0, 1, 0, 2, Q("1.955 in")),
    Sketcher.Constraint("DistanceX", -1, 1, 5, 3, Q("0.75 in")),
    Sketcher.Constraint("DistanceY", 5, 3, -1, 1, Q("0.55 in")),
    Sketcher.Constraint("DistanceX", -1, 1, 1, 3, Q("422.25 mm")),
    Sketcher.Constraint("DistanceY", 1, 3, -1, 1, Q("79.2415 mm")),
    Sketcher.Constraint("DistanceY", 21, 3, -1, 1, Q("229.2415 mm")),
    Sketcher.Constraint("DistanceX", -1, 1, 25, 3, Q("22.25 mm")),
])
pocket4 = body.newObject("PartDesign::Pocket", "Pocket003")
pocket4.Profile = sketch8
pocket4.Type = "ThroughAll"

# Sketch on XZ plane
sketch9 = body.newObject("Sketcher::SketchObject", "Sketch008")
sketch9.AttachmentSupport = (doc.getObject("XZ_Plane"), [""])
sketch9.MapMode = "FlatFace"
sketch9.AttachmentOffset = App.Placement(App.Vector(0, 0, -0.25 * 25.4), App.Rotation())
sketch9.addGeometry([
    Part.LineSegment(App.Vector(138.9, -95.7, 0), App.Vector(138.9, 7.6, 0)),  # 0
    Part.ArcOfCircle(Part.Circle(App.Vector(139.7, 7.6, 0), App.Vector(0, 0, 1), 0.8), math.radians(0), math.radians(180)),  # 1
    Part.LineSegment(App.Vector(140.5, 7.6, 0), App.Vector(140.5, -95.7, 0)),  # 2
    Part.LineSegment(App.Vector(140.5, -95.7, 0), App.Vector(459.7, -95.7, 0)),  # 3
    Part.ArcOfCircle(Part.Circle(App.Vector(459.7, -96.5, 0), App.Vector(0, 0, 1), 0.8), math.radians(-90), math.radians(90)),  # 4
    Part.LineSegment(App.Vector(459.7, -97.3, 0), App.Vector(140.5, -97.3, 0)),  # 5
    Part.LineSegment(App.Vector(140.5, -97.3, 0), App.Vector(140.5, -358.1, 0)),  # 6
    Part.ArcOfCircle(Part.Circle(App.Vector(139.7, -358.1, 0), App.Vector(0, 0, 1), 0.8), math.radians(180), math.radians(360)),  # 7
    Part.LineSegment(App.Vector(138.9, -358.1, 0), App.Vector(138.9, -97.3, 0)),  # 8
    Part.LineSegment(App.Vector(138.9, -97.3, 0), App.Vector(0, -97.3, 0)),  # 9
    Part.ArcOfCircle(Part.Circle(App.Vector(0, -96.5, 0), App.Vector(0, 0, 1), 0.8), math.radians(90), math.radians(270)),  # 10
    Part.LineSegment(App.Vector(0, -95.7, 0), App.Vector(138.9, -95.7, 0)),  # 11
], False)
sketch9.addConstraint([
    Sketcher.Constraint("Tangent", 0, 2, 1, 2),
    Sketcher.Constraint("Tangent", 1, 1, 2, 1),
    Sketcher.Constraint("Coincident", 2, 2, 3, 1),
    Sketcher.Constraint("Tangent", 3, 2, 4, 2),
    Sketcher.Constraint("Tangent", 4, 1, 5, 1),
    Sketcher.Constraint("Coincident", 5, 2, 6, 1),
    Sketcher.Constraint("Tangent", 6, 2, 7, 2),
    Sketcher.Constraint("Tangent", 7, 1, 8, 1),
    Sketcher.Constraint("Coincident", 8, 2, 9, 1),
    Sketcher.Constraint("Tangent", 9, 2, 10, 2),
    Sketcher.Constraint("Tangent", 10, 1, 11, 1),
    Sketcher.Constraint("Coincident", 11, 2, 0, 1),
    Sketcher.Constraint("Vertical", 0),
    Sketcher.Constraint("Vertical", 2),
    Sketcher.Constraint("Horizontal", 3),
    Sketcher.Constraint("Horizontal", 5),
    Sketcher.Constraint("Vertical", 6),
    Sketcher.Constraint("Vertical", 8),
    Sketcher.Constraint("Horizontal", 9),
    Sketcher.Constraint("Horizontal", 11),
    Sketcher.Constraint("Equal", 1, 4),
    Sketcher.Constraint("Equal", 4, 7),
    Sketcher.Constraint("Equal", 7, 10),
    Sketcher.Constraint("PointOnObject", 10, 3, -2),
    Sketcher.Constraint("Horizontal", 4, 3, 10, 3),
    Sketcher.Constraint("Vertical", 1, 3, 7, 3),
    Sketcher.Constraint("Radius", 1, Q("0.03125 in")),
    Sketcher.Constraint("DistanceX", -1, 1, 1, 3, Q("5.5 in")),
    Sketcher.Constraint("DistanceY", -1, 1, 1, 3, Q("0.3 in")),
    Sketcher.Constraint("DistanceX", -1, 1, 4, 3, Q("18.1 in")),
    Sketcher.Constraint("DistanceY", 4, 3, -1, 1, Q("3.8 in")),
    Sketcher.Constraint("DistanceY", 7, 3, -1, 1, Q("14.1 in")),
])
pocket5 = body.newObject("PartDesign::Pocket", "Pocket004")
pocket5.Profile = sketch9
pocket5.Length = Q("0.01 in")
pocket5.Reversed = True

# Sketch on XZ plane
sketch10 = body.newObject("Sketcher::SketchObject", "Sketch009")
sketch10.AttachmentSupport = (doc.getObject("XZ_Plane"), [""])
sketch10.MapMode = "FlatFace"
sketch10.addGeometry([
    Part.LineSegment(App.Vector(38.1, -95.7, 0), App.Vector(-38.1, -95.7, 0)),  # 0
    Part.ArcOfCircle(Part.Circle(App.Vector(-38.1, -96.5, 0), App.Vector(0, 0, 1), 0.8), math.radians(90), math.radians(270)),  # 1
    Part.LineSegment(App.Vector(-38.1, -97.3, 0), App.Vector(38.1, -97.3, 0)),  # 2
    Part.ArcOfCircle(Part.Circle(App.Vector(38.1, -96.5, 0), App.Vector(0, 0, 1), 0.8), math.radians(-90), math.radians(90)),  # 3
    Part.LineSegment(App.Vector(406.4, -97.3, 0), App.Vector(482.6, -97.3, 0)),  # 4
    Part.ArcOfCircle(Part.Circle(App.Vector(482.6, -96.5, 0), App.Vector(0, 0, 1), 0.8), math.radians(-90), math.radians(90)),  # 5
    Part.LineSegment(App.Vector(482.6, -95.7, 0), App.Vector(406.4, -95.7, 0)),  # 6
    Part.ArcOfCircle(Part.Circle(App.Vector(406.4, -96.5, 0), App.Vector(0, 0, 1), 0.8), math.radians(90), math.radians(270)),  # 7
], False)
sketch10.addConstraint([
    Sketcher.Constraint("Tangent", 0, 2, 1, 1),
    Sketcher.Constraint("Tangent", 1, 2, 2, 1),
    Sketcher.Constraint("Tangent", 2, 2, 3, 1),
    Sketcher.Constraint("Tangent", 3, 2, 0, 1),
    Sketcher.Constraint("Tangent", 4, 2, 5, 1),
    Sketcher.Constraint("Tangent", 5, 2, 6, 1),
    Sketcher.Constraint("Tangent", 6, 2, 7, 1),
    Sketcher.Constraint("Tangent", 7, 2, 4, 1),
    Sketcher.Constraint("Horizontal", 0),
    Sketcher.Constraint("Horizontal", 2),
    Sketcher.Constraint("Horizontal", 4),
    Sketcher.Constraint("Horizontal", 6),
    Sketcher.Constraint("Equal", 3, 5),
    Sketcher.Constraint("Horizontal", 3, 3, 5, 3),
    Sketcher.Constraint("Equal", 2, 4),
    Sketcher.Constraint("DistanceX", 0, 2, 0, 1, Q("3 in")),
    Sketcher.Constraint("DistanceX", -1, 1, 5, 3, Q("19 in")),
    Sketcher.Constraint("Radius", 1, Q("0.03125 in")),
    Sketcher.Constraint("DistanceX", 1, 3, -1, 1, Q("1.5 in")),
    Sketcher.Constraint("DistanceY", 1, 3, -1, 1, Q("3.8 in")),
])
pocket6 = body.newObject("PartDesign::Pocket", "Pocket005")
pocket6.Profile = sketch10
pocket6.Length = Q("0.01 in")

doc.recompute()
